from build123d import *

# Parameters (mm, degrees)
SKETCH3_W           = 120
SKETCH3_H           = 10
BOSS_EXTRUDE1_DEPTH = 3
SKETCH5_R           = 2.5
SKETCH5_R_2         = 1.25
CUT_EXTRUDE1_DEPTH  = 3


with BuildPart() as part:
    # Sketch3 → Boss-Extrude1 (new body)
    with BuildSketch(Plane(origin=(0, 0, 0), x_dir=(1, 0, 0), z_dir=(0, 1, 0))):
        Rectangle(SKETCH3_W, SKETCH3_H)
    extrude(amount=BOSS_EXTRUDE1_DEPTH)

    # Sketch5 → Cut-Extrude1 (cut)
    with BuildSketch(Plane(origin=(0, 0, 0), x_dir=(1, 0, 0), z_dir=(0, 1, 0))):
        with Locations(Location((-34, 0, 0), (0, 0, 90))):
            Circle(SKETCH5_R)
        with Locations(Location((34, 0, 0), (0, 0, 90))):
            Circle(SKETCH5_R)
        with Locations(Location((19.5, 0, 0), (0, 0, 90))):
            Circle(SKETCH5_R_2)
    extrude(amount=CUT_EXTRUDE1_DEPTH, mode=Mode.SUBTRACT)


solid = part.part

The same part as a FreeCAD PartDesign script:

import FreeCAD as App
import Part
import Sketcher
from FreeCAD import Vector

doc = App.newDocument("Part")
body = doc.addObject("PartDesign::Body", "Body")

# Sketch on XZ plane
sketch1 = body.newObject("Sketcher::SketchObject", "Sketch")
sketch1.AttachmentSupport = (doc.getObject("XZ_Plane"), [""])
sketch1.MapMode = "FlatFace"
sketch1.addGeometry(Part.LineSegment(Vector(-60, -5, 0), Vector(-60, 5, 0)), False)
sketch1.addGeometry(Part.LineSegment(Vector(-60, 5, 0), Vector(60, 5, 0)), False)
sketch1.addGeometry(Part.LineSegment(Vector(60, 5, 0), Vector(60, -5, 0)), False)
sketch1.addGeometry(Part.LineSegment(Vector(60, -5, 0), Vector(-60, -5, 0)), False)
sketch1.addConstraint(Sketcher.Constraint("Coincident", 0, 2, 1, 1))
sketch1.addConstraint(Sketcher.Constraint("Coincident", 1, 2, 2, 1))
sketch1.addConstraint(Sketcher.Constraint("Coincident", 2, 2, 3, 1))
sketch1.addConstraint(Sketcher.Constraint("Coincident", 3, 2, 0, 1))
sketch1.addConstraint(Sketcher.Constraint("Vertical", 0))
sketch1.addConstraint(Sketcher.Constraint("Horizontal", 1))
sketch1.addConstraint(Sketcher.Constraint("Vertical", 2))
sketch1.addConstraint(Sketcher.Constraint("Horizontal", 3))
sketch1.addConstraint(Sketcher.Constraint("Symmetric", 0, 2, 2, 2, -1, 1))
sketch1.addConstraint(Sketcher.Constraint("DistanceX", 1, 1, 1, 2, 120.0))
sketch1.addConstraint(Sketcher.Constraint("DistanceY", 0, 1, 0, 2, 10.0))
pad1 = body.newObject("PartDesign::Pad", "Pad")
pad1.Profile = sketch1
pad1.Length = 3
pad1.Reversed = True

# Sketch on XZ plane
sketch2 = body.newObject("Sketcher::SketchObject", "Sketch001")
sketch2.AttachmentSupport = (doc.getObject("XZ_Plane"), [""])
sketch2.MapMode = "FlatFace"
sketch2.addGeometry(Part.Circle(Vector(-34, 0, 0), Vector(0, 0, 1), 2.5), False)
sketch2.addGeometry(Part.Circle(Vector(34, 0, 0), Vector(0, 0, 1), 2.5), False)
sketch2.addGeometry(Part.Circle(Vector(19.5, 0, 0), Vector(0, 0, 1), 1.2), False)
sketch2.addConstraint(Sketcher.Constraint("Equal", 0, 1))
sketch2.addConstraint(Sketcher.Constraint("Symmetric", 0, 3, 1, 3, -1, 1))
sketch2.addConstraint(Sketcher.Constraint("PointOnObject", 0, 3, -1))
sketch2.addConstraint(Sketcher.Constraint("PointOnObject", 2, 3, -1))
sketch2.addConstraint(Sketcher.Constraint("Diameter", 0, 5.0))
sketch2.addConstraint(Sketcher.Constraint("Diameter", 2, 2.5))
sketch2.addConstraint(Sketcher.Constraint("DistanceX", 0, 3, -1, 1, 34.0))
sketch2.addConstraint(Sketcher.Constraint("DistanceX", -1, 1, 2, 3, 19.5))
pocket1 = body.newObject("PartDesign::Pocket", "Pocket")
pocket1.Profile = sketch2
pocket1.Length = 3

doc.recompute()
